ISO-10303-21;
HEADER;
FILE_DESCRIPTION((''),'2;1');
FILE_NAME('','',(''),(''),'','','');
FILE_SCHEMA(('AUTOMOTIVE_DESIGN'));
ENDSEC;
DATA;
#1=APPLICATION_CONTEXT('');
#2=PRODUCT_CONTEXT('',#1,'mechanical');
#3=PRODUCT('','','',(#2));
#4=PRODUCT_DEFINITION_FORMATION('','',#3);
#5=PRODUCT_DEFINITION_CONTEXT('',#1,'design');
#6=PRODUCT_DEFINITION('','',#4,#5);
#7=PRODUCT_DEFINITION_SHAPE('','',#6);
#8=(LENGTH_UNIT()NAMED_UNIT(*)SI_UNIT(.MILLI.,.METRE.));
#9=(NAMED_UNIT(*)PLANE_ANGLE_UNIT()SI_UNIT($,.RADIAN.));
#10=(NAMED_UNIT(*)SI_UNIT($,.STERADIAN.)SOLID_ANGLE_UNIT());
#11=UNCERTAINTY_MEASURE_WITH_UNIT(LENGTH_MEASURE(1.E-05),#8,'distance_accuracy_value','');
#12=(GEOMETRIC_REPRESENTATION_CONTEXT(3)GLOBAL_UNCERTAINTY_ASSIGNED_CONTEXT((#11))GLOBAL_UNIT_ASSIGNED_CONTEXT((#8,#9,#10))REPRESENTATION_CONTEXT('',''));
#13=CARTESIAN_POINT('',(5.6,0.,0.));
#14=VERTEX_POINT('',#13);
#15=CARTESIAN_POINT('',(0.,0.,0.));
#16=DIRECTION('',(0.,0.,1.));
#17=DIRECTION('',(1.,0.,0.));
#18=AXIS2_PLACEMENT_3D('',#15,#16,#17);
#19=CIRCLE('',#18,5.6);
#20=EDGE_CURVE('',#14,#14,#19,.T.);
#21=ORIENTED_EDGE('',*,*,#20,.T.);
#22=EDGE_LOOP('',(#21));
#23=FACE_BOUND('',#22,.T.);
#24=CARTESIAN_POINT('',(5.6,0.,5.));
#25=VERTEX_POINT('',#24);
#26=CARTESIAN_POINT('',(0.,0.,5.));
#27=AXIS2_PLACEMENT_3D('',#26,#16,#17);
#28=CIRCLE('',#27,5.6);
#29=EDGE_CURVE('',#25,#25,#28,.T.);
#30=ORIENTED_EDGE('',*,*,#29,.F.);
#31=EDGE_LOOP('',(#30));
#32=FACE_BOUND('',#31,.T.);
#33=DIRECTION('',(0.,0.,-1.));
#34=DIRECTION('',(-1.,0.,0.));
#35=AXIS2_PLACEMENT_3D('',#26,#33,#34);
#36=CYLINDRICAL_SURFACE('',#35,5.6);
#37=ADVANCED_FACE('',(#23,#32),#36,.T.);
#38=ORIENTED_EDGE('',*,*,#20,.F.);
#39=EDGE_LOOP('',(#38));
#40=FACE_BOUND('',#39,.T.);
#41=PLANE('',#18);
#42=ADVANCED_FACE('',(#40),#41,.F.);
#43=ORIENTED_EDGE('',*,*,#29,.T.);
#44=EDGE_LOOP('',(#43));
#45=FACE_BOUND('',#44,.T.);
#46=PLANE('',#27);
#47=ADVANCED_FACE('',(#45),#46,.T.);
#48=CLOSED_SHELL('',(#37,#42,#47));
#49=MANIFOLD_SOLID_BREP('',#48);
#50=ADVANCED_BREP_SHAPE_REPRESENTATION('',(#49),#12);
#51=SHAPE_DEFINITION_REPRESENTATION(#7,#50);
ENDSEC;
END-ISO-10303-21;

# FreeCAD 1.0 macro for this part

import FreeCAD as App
import Part
import Sketcher

doc = App.newDocument("Part")
params = doc.addObject("Spreadsheet::Sheet", "Params")
for row, (alias, value) in enumerate([
    ("sketch1_diameter", "11.2 mm"),
    ("pad1_length", "5 mm"),
], start=1):
    params.set(f"A{row}", alias)
    params.set(f"B{row}", "=" + value)
    params.setAlias(f"B{row}", alias)

body = doc.addObject("PartDesign::Body", "Body")

# Sketch on XY plane
sketch1 = body.newObject("Sketcher::SketchObject", "Sketch")
sketch1.AttachmentSupport = (doc.getObject("XY_Plane"), [""])
sketch1.MapMode = "FlatFace"
sketch1.addGeometry(Part.Circle(App.Vector(0, 0, 0), App.Vector(0, 0, 1), 6), False)
sketch1.addConstraint([
    Sketcher.Constraint("Coincident", 0, 3, -1, 1),
    Sketcher.Constraint("Diameter", 0, 11.2),
])
sketch1.setExpression("Constraints[1]", "Params.sketch1_diameter")
pad1 = body.newObject("PartDesign::Pad", "Pad")
pad1.Profile = sketch1
pad1.setExpression("Length", "Params.pad1_length")

doc.recompute()
